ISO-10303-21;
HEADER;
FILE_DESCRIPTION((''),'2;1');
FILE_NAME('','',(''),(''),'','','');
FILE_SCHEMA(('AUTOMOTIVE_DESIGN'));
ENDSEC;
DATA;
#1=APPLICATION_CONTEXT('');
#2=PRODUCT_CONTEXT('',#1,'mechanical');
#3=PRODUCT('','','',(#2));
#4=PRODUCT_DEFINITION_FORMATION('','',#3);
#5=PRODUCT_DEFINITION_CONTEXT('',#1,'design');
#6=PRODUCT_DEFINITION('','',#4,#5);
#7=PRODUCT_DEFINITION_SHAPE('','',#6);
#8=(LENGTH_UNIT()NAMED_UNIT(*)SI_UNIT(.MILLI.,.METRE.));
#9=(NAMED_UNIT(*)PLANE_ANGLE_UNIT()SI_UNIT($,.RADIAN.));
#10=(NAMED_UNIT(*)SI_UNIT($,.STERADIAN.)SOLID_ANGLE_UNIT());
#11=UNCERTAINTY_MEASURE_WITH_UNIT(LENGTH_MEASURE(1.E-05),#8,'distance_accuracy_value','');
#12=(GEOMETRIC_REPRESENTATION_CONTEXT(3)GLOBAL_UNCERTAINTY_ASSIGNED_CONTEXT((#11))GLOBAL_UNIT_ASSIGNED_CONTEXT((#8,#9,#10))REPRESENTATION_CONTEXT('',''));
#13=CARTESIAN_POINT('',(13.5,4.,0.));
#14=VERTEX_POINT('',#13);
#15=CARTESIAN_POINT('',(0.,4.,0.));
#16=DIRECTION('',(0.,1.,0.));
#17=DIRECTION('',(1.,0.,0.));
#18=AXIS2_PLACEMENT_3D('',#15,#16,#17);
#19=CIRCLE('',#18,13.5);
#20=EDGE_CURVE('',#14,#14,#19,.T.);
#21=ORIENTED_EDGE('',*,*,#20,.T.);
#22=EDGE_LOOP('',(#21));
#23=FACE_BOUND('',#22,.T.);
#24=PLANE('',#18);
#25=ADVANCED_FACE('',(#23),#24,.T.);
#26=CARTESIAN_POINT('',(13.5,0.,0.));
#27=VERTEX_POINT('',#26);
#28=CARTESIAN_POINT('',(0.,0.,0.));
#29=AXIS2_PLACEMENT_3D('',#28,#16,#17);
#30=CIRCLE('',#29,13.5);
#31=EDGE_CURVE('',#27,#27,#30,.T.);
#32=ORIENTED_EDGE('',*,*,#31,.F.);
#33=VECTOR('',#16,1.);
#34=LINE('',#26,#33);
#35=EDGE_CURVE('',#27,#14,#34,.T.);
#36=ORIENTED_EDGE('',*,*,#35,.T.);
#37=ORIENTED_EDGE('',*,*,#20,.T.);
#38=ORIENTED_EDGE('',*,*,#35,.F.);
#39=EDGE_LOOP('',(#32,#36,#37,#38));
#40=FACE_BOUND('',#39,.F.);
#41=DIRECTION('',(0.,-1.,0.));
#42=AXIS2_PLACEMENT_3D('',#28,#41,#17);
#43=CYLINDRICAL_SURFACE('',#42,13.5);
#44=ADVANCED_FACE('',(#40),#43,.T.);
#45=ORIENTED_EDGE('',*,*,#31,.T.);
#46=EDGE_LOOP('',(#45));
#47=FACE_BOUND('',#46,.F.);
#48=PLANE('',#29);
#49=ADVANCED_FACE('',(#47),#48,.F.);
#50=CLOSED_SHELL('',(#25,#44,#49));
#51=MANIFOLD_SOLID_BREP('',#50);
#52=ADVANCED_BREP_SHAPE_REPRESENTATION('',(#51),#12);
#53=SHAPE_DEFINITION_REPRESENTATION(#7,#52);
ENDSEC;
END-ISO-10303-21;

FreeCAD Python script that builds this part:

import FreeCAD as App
import Part
import Sketcher
from FreeCAD import Vector
Q = App.Units.Quantity

doc = App.newDocument("Part")
body = doc.addObject("PartDesign::Body", "Body")

# Sketch on XZ plane
sketch1 = body.newObject("Sketcher::SketchObject", "Sketch")
sketch1.AttachmentSupport = (doc.getObject("XZ_Plane"), [""])
sketch1.MapMode = "FlatFace"
sketch1.addGeometry(Part.Circle(Vector(0, 0, 0), Vector(0, 0, 1), 14), False)
sketch1.addConstraint([
    Sketcher.Constraint("Coincident", 0, 3, -1, 1),
    Sketcher.Constraint("Diameter", 0, Q("27 mm")),
])
pad1 = body.newObject("PartDesign::Pad", "Pad")
pad1.Profile = sketch1
pad1.Length = 4
pad1.Reversed = True

doc.recompute()
